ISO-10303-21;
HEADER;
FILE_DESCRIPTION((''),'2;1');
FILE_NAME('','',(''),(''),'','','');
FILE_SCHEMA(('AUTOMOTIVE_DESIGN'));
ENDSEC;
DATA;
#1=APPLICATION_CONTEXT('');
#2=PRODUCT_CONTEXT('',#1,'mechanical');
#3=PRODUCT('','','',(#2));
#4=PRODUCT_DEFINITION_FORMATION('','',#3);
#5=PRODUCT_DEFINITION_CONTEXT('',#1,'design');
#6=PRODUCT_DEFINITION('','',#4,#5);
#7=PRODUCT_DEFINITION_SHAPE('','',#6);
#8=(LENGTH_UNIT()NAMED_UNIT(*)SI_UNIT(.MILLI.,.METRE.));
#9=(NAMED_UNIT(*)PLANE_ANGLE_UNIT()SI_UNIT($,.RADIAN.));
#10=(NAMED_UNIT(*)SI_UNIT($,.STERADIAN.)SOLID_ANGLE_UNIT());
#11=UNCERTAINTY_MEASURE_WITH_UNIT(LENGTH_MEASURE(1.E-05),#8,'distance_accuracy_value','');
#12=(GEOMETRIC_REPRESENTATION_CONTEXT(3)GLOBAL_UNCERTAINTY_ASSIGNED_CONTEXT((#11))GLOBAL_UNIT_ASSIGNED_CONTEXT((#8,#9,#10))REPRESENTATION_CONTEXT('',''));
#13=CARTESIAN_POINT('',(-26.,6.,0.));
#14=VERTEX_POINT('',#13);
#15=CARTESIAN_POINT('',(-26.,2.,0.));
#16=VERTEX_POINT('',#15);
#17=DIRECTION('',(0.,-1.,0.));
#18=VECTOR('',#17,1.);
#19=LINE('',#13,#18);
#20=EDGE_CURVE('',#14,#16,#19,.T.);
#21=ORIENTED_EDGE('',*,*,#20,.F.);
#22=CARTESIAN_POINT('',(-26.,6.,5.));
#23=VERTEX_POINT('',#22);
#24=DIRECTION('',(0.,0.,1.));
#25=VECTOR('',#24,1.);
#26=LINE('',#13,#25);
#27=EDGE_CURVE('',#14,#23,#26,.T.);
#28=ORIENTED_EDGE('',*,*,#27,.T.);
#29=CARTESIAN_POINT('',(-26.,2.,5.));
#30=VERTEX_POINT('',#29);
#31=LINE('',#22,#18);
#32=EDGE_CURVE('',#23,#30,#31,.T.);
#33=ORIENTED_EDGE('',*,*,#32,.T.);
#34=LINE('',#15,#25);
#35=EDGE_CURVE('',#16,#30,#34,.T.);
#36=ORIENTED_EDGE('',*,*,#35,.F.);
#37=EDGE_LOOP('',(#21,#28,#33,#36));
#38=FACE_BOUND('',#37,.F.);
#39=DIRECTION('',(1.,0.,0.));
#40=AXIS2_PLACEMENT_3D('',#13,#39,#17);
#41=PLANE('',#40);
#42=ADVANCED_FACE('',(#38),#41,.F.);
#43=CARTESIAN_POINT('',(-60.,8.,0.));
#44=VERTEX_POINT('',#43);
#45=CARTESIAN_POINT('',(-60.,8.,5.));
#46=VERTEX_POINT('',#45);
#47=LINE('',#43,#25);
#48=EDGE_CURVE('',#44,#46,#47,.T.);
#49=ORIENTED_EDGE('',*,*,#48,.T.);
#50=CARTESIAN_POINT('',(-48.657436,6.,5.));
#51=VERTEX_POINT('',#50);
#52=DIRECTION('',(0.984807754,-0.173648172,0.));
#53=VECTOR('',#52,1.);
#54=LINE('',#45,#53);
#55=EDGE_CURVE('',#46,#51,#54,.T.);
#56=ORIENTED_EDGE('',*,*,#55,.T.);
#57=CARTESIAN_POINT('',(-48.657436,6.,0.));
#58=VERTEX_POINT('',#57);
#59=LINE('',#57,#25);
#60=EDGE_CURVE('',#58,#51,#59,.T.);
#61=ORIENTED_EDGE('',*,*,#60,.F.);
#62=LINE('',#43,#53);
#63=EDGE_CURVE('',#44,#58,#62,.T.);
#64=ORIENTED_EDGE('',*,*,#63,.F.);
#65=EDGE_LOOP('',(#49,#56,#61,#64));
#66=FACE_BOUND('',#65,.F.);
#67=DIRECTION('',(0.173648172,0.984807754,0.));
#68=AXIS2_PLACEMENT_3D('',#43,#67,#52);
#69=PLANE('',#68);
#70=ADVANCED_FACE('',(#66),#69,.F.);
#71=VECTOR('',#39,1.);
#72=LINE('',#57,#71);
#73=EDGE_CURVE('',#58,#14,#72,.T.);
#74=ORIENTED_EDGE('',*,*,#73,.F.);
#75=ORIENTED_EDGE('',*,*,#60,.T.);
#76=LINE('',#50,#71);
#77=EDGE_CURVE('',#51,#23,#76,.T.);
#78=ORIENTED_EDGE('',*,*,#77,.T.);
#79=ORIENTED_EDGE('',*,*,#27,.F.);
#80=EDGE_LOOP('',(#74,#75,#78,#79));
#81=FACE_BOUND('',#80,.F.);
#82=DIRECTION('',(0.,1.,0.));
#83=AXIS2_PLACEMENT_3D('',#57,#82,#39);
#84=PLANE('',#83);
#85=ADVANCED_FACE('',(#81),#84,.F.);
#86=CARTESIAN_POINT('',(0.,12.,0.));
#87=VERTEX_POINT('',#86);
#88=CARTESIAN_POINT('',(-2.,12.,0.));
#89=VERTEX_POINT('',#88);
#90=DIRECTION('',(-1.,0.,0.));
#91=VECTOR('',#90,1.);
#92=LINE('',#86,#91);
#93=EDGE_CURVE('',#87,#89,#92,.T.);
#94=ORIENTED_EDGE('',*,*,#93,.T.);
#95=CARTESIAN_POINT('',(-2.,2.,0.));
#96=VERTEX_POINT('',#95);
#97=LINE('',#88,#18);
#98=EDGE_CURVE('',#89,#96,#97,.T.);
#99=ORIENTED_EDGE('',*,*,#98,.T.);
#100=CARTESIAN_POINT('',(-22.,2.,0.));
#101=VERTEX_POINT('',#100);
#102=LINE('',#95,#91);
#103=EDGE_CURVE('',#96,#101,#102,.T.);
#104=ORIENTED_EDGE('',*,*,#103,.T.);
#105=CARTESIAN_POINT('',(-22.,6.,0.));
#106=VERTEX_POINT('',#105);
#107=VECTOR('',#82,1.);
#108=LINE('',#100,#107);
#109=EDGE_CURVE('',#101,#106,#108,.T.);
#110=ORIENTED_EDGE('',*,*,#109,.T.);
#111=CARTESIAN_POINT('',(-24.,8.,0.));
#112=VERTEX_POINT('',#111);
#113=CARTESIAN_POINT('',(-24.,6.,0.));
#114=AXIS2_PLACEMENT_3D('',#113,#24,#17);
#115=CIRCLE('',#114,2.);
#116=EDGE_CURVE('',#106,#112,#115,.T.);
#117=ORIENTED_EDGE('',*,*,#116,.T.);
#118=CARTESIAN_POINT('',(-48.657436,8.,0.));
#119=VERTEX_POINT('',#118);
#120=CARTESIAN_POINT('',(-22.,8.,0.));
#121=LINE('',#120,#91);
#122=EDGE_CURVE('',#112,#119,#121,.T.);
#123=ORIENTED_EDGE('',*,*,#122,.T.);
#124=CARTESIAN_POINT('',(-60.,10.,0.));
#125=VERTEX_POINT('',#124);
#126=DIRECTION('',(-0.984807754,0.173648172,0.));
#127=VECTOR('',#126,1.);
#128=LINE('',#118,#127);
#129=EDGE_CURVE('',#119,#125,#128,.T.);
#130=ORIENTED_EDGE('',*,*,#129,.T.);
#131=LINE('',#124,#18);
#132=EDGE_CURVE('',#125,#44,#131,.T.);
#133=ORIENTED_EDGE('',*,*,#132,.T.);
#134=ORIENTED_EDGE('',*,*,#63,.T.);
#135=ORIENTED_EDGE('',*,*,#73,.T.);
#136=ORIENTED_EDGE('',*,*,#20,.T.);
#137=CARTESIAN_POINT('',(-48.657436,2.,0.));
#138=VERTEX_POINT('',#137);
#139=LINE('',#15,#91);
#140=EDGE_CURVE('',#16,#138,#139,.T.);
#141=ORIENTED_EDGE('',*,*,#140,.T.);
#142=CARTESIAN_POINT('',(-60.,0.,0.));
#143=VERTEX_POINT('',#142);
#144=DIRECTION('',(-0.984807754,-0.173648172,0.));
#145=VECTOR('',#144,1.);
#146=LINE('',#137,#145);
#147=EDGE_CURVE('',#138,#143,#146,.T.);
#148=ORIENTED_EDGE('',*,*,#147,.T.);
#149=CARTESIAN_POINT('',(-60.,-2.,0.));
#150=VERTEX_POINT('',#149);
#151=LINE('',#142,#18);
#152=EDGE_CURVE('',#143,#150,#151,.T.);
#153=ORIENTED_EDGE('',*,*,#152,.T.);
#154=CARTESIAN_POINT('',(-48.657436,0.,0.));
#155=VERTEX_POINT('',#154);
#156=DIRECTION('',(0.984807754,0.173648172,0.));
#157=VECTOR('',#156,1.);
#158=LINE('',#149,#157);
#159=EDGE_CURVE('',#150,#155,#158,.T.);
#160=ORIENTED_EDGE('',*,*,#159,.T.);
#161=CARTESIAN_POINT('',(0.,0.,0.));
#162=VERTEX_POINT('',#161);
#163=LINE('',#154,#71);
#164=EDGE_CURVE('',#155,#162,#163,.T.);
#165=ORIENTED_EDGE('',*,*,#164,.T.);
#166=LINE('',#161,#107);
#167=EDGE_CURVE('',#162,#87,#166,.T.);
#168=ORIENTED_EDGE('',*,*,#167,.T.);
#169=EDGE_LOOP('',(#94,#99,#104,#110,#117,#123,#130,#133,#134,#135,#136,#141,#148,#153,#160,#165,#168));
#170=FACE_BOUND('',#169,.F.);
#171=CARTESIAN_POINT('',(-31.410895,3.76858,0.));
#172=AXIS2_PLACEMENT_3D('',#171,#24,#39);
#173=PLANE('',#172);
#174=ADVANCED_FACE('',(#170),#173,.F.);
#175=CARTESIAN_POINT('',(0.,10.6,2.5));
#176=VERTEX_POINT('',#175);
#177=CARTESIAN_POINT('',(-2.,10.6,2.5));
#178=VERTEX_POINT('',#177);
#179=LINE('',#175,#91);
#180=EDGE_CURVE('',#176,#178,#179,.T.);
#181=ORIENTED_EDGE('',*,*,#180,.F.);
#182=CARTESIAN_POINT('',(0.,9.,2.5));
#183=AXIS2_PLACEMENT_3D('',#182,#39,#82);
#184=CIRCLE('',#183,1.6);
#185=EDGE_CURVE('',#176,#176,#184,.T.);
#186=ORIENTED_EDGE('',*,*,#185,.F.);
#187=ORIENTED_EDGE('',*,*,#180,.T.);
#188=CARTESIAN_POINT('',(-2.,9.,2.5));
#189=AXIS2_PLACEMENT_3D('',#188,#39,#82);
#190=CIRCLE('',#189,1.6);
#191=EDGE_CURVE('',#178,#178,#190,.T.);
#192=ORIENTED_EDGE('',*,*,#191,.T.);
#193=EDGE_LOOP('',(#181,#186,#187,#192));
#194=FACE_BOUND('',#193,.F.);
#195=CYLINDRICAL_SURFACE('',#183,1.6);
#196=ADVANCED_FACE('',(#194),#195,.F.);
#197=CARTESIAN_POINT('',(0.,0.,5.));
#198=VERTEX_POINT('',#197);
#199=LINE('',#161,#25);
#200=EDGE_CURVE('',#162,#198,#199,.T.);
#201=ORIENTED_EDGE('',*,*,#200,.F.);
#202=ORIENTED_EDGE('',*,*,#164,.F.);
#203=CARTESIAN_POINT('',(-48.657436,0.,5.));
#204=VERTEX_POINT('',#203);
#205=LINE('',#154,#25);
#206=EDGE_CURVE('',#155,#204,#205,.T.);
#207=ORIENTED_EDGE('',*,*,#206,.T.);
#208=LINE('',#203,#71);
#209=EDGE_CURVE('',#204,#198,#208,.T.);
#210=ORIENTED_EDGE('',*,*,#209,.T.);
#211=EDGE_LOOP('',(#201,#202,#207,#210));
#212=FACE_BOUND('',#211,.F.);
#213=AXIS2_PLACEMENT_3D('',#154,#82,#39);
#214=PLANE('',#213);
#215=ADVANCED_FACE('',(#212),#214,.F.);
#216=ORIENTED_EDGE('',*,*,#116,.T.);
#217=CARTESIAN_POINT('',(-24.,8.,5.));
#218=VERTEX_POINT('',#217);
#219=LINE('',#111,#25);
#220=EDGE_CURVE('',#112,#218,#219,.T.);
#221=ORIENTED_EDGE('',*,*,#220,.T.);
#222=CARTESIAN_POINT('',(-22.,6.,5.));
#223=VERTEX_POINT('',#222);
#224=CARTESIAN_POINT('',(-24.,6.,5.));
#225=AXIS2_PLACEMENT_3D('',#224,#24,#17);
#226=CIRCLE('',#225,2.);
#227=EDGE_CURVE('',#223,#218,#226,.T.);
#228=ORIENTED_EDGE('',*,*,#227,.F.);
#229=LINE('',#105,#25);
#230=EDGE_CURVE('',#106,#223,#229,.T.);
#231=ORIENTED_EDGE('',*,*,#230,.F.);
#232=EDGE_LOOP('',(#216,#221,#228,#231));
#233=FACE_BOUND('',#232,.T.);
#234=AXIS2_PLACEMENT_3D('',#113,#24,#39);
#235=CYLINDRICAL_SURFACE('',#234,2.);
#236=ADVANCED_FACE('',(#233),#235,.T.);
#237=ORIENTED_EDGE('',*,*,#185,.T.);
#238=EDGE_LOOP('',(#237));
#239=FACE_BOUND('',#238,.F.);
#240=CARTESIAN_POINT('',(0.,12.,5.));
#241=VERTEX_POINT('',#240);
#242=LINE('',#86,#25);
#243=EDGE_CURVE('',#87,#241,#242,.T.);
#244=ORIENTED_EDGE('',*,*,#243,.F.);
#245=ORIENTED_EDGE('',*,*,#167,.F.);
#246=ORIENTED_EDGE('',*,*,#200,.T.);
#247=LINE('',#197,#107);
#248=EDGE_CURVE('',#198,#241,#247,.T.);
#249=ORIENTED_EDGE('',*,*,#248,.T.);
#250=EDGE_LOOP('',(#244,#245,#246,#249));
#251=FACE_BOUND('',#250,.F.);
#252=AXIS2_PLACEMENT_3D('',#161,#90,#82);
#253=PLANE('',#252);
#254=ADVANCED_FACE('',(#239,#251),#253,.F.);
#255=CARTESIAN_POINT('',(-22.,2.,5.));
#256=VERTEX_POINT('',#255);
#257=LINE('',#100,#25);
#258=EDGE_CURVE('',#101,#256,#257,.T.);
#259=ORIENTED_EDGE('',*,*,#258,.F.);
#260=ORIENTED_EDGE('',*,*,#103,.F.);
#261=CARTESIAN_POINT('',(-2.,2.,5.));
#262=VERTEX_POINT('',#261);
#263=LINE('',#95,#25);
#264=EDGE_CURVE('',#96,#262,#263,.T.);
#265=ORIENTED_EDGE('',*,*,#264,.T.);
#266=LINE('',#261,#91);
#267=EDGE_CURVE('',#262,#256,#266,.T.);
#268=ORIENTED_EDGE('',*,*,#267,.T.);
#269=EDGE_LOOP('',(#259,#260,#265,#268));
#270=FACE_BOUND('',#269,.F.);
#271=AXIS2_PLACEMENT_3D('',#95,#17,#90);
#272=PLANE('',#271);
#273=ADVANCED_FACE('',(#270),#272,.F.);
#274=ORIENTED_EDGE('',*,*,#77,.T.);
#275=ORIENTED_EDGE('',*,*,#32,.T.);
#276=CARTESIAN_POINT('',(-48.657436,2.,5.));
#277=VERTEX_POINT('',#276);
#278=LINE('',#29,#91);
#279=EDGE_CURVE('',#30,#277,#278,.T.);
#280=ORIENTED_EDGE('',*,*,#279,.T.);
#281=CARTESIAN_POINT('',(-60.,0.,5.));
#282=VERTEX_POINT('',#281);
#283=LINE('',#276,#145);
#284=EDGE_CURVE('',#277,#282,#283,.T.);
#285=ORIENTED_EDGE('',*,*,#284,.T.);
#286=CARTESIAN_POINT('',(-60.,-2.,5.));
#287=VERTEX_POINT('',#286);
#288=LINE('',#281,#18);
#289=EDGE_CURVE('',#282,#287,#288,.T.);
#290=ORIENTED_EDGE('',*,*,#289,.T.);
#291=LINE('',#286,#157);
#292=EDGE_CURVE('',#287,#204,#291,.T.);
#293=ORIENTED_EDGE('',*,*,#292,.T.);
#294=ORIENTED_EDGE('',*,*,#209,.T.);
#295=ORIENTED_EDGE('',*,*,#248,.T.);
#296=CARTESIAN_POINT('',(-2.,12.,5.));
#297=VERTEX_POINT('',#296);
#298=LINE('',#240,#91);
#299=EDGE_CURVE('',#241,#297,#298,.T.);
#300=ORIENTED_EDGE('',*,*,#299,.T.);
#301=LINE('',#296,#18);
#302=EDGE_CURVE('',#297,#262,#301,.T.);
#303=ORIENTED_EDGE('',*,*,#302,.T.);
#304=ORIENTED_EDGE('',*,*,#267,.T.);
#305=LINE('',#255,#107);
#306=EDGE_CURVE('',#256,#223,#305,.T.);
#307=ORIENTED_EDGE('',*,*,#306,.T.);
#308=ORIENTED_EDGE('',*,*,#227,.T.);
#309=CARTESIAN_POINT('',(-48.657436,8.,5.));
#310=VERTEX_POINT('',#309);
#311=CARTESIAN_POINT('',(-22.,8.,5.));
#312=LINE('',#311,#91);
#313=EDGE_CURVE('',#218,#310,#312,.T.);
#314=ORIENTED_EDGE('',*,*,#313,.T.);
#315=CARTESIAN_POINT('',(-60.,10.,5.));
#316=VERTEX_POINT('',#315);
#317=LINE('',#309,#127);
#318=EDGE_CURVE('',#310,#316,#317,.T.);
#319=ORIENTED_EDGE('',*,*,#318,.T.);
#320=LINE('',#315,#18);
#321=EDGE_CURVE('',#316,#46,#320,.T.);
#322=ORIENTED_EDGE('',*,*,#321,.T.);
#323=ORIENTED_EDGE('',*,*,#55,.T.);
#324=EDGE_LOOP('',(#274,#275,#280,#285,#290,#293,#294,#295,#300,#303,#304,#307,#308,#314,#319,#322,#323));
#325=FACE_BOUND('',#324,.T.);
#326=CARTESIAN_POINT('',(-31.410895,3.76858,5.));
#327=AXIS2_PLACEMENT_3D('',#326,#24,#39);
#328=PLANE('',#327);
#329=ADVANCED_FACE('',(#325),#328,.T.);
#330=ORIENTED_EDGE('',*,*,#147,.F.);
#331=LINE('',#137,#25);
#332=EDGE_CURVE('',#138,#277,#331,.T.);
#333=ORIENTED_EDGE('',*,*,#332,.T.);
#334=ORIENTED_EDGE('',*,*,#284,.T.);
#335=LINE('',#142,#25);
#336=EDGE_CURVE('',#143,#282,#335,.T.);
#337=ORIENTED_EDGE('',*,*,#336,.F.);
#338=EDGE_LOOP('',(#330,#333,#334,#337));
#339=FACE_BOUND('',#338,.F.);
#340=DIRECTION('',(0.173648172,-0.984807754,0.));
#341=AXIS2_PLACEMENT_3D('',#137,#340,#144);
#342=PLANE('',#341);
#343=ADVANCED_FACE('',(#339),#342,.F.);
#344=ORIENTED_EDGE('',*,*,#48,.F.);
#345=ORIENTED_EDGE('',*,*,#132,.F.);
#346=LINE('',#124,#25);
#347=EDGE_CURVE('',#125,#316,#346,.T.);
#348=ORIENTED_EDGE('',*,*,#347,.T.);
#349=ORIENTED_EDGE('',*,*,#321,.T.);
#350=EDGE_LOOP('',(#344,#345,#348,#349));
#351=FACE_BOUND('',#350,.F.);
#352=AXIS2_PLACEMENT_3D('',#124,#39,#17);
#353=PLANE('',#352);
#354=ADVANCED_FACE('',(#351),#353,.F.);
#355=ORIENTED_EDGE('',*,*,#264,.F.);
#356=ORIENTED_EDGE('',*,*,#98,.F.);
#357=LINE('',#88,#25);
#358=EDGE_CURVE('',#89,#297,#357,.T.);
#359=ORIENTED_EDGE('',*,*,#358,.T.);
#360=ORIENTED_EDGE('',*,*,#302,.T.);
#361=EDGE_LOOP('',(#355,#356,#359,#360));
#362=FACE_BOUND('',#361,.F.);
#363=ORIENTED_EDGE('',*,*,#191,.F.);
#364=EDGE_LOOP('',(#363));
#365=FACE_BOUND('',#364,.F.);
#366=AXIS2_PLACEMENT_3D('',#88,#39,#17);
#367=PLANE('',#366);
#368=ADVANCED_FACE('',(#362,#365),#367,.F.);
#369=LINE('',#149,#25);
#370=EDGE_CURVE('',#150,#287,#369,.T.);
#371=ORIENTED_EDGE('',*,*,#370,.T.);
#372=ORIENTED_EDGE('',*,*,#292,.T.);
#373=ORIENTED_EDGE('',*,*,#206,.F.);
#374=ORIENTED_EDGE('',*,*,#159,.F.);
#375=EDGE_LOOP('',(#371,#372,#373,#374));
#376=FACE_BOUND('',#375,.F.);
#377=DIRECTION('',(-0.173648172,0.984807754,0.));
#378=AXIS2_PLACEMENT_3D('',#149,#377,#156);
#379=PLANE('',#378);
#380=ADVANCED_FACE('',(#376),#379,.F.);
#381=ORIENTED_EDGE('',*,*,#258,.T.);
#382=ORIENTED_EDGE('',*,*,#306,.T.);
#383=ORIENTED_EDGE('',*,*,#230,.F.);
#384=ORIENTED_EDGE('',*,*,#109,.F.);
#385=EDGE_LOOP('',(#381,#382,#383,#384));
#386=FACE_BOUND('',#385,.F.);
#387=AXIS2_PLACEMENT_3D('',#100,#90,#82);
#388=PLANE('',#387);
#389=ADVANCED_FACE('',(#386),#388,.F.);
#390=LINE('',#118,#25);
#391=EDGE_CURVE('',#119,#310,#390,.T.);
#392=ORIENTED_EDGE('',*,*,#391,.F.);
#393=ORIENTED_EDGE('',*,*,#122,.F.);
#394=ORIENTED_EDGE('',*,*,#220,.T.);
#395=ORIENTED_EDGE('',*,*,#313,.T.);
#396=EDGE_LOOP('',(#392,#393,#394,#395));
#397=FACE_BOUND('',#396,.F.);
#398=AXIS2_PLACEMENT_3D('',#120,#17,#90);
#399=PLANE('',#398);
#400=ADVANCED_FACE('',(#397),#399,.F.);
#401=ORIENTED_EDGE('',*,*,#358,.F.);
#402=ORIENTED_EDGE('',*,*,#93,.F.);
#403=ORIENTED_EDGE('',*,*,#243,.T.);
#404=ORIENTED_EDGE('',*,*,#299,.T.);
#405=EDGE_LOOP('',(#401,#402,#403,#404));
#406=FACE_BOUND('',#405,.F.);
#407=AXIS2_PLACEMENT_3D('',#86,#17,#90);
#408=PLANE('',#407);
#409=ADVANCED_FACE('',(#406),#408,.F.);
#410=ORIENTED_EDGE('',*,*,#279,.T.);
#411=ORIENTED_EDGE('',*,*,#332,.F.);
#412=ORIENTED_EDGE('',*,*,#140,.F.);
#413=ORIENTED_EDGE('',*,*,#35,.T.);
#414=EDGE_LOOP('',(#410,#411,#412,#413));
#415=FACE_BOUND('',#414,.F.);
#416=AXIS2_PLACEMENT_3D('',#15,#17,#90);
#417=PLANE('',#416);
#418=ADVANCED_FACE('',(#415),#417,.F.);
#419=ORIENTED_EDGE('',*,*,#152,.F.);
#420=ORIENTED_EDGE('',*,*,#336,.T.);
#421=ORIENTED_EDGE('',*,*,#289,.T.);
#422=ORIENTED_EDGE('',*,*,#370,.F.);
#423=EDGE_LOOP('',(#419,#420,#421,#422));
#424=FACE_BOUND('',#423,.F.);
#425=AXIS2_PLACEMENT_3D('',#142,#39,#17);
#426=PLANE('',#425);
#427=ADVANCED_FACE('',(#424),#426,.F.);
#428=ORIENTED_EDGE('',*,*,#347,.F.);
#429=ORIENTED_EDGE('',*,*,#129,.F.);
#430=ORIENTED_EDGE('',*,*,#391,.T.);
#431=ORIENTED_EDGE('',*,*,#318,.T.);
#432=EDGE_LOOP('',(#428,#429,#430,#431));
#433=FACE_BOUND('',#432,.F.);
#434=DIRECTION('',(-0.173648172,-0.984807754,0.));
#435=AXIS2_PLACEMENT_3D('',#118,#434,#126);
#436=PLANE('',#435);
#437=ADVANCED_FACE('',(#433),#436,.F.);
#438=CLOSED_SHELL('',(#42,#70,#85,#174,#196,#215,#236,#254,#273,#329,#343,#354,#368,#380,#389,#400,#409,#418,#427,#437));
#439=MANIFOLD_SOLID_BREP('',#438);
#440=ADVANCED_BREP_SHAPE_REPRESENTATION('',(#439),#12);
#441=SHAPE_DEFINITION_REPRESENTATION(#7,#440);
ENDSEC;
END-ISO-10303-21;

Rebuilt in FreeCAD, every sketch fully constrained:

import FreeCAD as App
import Part
import Sketcher
Q = App.Units.Quantity


def edges_at(feature, points):
    """Names of the edges that pass closest to the given points."""
    edges = feature.Shape.Edges
    near = lambda p: min(range(len(edges)), key=lambda i: edges[i].distToShape(Part.Vertex(*p))[0])
    return sorted({f"Edge{near(p) + 1}" for p in points})

doc = App.newDocument("Part")
body = doc.addObject("PartDesign::Body", "Body")

# Sketch on XY plane
sketch1 = body.newObject("Sketcher::SketchObject", "Sketch")
sketch1.AttachmentSupport = (doc.getObject("XY_Plane"), [""])
sketch1.MapMode = "FlatFace"
sketch1.addGeometry([
    Part.LineSegment(App.Vector(-48.7, 0, 0), App.Vector(0, 0, 0)),  # 0
    Part.LineSegment(App.Vector(0, 0, 0), App.Vector(0, 12, 0)),  # 1
    Part.LineSegment(App.Vector(0, 12, 0), App.Vector(-2, 12, 0)),  # 2
    Part.LineSegment(App.Vector(-2, 12, 0), App.Vector(-2, 2, 0)),  # 3
    Part.LineSegment(App.Vector(-2, 2, 0), App.Vector(-22, 2, 0)),  # 4
    Part.LineSegment(App.Vector(-22, 2, 0), App.Vector(-22, 8, 0)),  # 5
    Part.LineSegment(App.Vector(-22, 8, 0), App.Vector(-48.7, 8, 0)),  # 6
    Part.LineSegment(App.Vector(-48.7, 8, 0), App.Vector(-60, 10, 0)),  # 7
    Part.LineSegment(App.Vector(-60, 10, 0), App.Vector(-60, 8, 0)),  # 8
    Part.LineSegment(App.Vector(-60, 8, 0), App.Vector(-48.7, 6, 0)),  # 9
    Part.LineSegment(App.Vector(-48.7, 6, 0), App.Vector(-26, 6, 0)),  # 10
    Part.LineSegment(App.Vector(-26, 6, 0), App.Vector(-26, 2, 0)),  # 11
    Part.LineSegment(App.Vector(-26, 2, 0), App.Vector(-48.7, 2, 0)),  # 12
    Part.LineSegment(App.Vector(-48.7, 2, 0), App.Vector(-60, 0, 0)),  # 13
    Part.LineSegment(App.Vector(-60, 0, 0), App.Vector(-60, -2, 0)),  # 14
    Part.LineSegment(App.Vector(-60, -2, 0), App.Vector(-48.7, 0, 0)),  # 15
], False)
sketch1.addConstraint([
    Sketcher.Constraint("Coincident", 0, 2, 1, 1),
    Sketcher.Constraint("Coincident", 1, 2, 2, 1),
    Sketcher.Constraint("Coincident", 2, 2, 3, 1),
    Sketcher.Constraint("Coincident", 3, 2, 4, 1),
    Sketcher.Constraint("Coincident", 4, 2, 5, 1),
    Sketcher.Constraint("Coincident", 5, 2, 6, 1),
    Sketcher.Constraint("Coincident", 6, 2, 7, 1),
    Sketcher.Constraint("Coincident", 7, 2, 8, 1),
    Sketcher.Constraint("Coincident", 8, 2, 9, 1),
    Sketcher.Constraint("Coincident", 9, 2, 10, 1),
    Sketcher.Constraint("Coincident", 10, 2, 11, 1),
    Sketcher.Constraint("Coincident", 11, 2, 12, 1),
    Sketcher.Constraint("Coincident", 12, 2, 13, 1),
    Sketcher.Constraint("Coincident", 13, 2, 14, 1),
    Sketcher.Constraint("Coincident", 14, 2, 15, 1),
    Sketcher.Constraint("Coincident", 15, 2, 0, 1),
    Sketcher.Constraint("Horizontal", 0),
    Sketcher.Constraint("Vertical", 1),
    Sketcher.Constraint("Horizontal", 2),
    Sketcher.Constraint("Vertical", 3),
    Sketcher.Constraint("Horizontal", 4),
    Sketcher.Constraint("Vertical", 5),
    Sketcher.Constraint("Horizontal", 6),
    Sketcher.Constraint("Vertical", 8),
    Sketcher.Constraint("Horizontal", 10),
    Sketcher.Constraint("Vertical", 11),
    Sketcher.Constraint("Horizontal", 12),
    Sketcher.Constraint("Vertical", 14),
    Sketcher.Constraint("Coincident", 0, 2, -1, 1),
    Sketcher.Constraint("PointOnObject", 13, 2, -1),
    Sketcher.Constraint("Parallel", 7, 9),
    Sketcher.Constraint("Parallel", 13, 15),
    Sketcher.Constraint("Horizontal", 6, 2, 8, 2),
    Sketcher.Constraint("Horizontal", 4, 2, 11, 2),
    Sketcher.Constraint("Vertical", 6, 2, 9, 2),
    Sketcher.Constraint("Vertical", 9, 2, 12, 2),
    Sketcher.Constraint("Vertical", 8, 2, 13, 2),
    Sketcher.Constraint("Vertical", 12, 2, 15, 2),
    Sketcher.Constraint("Equal", 2, 8),
    Sketcher.Constraint("Equal", 8, 14),
    Sketcher.Constraint("DistanceX", 2, 2, 2, 1, 2.0),
    Sketcher.Constraint("DistanceX", 4, 2, 4, 1, 20.0),
    Sketcher.Constraint("DistanceY", 1, 1, 1, 2, 12.0),
    Sketcher.Constraint("DistanceY", 5, 1, 5, 2, 6.0),
    Sketcher.Constraint("Angle", 7, Q("170 deg")),
    Sketcher.Constraint("DistanceX", 7, 2, -1, 1, 60.0),
    Sketcher.Constraint("DistanceX", 10, 2, -1, 1, 26.0),
])
pad1 = body.newObject("PartDesign::Pad", "Pad")
pad1.Profile = sketch1
pad1.Length = 5

# Sketch on YZ plane
sketch2 = body.newObject("Sketcher::SketchObject", "Sketch001")
sketch2.AttachmentSupport = (doc.getObject("YZ_Plane"), [""])
sketch2.MapMode = "FlatFace"
sketch2.addGeometry(Part.Circle(App.Vector(9, 2.5, 0), App.Vector(0, 0, 1), 1.6), False)
sketch2.addConstraint([
    Sketcher.Constraint("Diameter", 0, 3.2),
    Sketcher.Constraint("DistanceX", -1, 1, 0, 3, 9.0),
    Sketcher.Constraint("DistanceY", -1, 1, 0, 3, 2.5),
])
pocket1 = body.newObject("PartDesign::Pocket", "Pocket")
pocket1.Profile = sketch2
pocket1.Length = 3
doc.recompute()

fillet = body.newObject("PartDesign::Fillet", "Fillet")
fillet.Base = (pocket1, edges_at(pocket1, [(-22, 8, 2.5)]))
fillet.Radius = 2

doc.recompute()
